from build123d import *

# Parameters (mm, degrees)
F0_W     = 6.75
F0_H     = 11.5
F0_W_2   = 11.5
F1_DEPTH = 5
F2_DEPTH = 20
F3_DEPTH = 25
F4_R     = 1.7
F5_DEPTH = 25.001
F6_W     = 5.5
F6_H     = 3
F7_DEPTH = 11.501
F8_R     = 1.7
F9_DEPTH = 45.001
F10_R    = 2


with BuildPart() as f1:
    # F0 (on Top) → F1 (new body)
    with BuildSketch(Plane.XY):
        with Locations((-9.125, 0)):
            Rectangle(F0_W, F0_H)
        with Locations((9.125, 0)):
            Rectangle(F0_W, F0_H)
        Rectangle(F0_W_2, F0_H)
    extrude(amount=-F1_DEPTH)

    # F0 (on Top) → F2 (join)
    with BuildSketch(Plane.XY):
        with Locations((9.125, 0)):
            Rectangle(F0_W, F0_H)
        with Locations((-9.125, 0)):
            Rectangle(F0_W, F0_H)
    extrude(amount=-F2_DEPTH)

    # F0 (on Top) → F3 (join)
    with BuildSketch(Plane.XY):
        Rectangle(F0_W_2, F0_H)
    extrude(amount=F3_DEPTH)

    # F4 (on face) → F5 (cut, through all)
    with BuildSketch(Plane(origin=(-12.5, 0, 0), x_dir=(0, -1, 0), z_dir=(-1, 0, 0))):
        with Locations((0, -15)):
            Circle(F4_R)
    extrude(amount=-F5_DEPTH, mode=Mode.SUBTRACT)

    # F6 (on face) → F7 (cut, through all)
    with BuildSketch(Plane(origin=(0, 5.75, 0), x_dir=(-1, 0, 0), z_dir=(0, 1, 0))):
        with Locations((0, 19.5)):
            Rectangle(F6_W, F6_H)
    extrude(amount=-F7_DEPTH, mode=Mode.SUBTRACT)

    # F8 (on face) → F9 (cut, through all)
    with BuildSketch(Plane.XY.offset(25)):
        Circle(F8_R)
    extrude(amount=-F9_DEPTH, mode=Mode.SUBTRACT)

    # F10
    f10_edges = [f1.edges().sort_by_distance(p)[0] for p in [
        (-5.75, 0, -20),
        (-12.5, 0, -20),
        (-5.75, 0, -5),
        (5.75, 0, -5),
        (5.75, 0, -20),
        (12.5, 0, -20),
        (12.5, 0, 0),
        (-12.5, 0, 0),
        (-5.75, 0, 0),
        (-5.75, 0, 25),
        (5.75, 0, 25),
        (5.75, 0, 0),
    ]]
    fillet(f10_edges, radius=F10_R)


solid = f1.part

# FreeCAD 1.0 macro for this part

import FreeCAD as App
import Part
import Sketcher

V = App.Vector
Q = App.Units.Quantity


def edges_at(feature, points):
    """Names of the edges that pass closest to the given points."""
    edges = feature.Shape.Edges
    near = lambda p: min(range(len(edges)), key=lambda i: edges[i].distToShape(Part.Vertex(*p))[0])
    return sorted({f"Edge{near(p) + 1}" for p in points})


def add_polygon(sketch, points):
    """Adds a closed chain of lines whose ends are joined by coincident constraints."""
    first, n = sketch.GeometryCount, len(points)
    for a, b in zip(points, points[1:] + points[:1]):
        sketch.addGeometry(Part.LineSegment(App.Vector(*a, 0), App.Vector(*b, 0)), False)
    for i in range(n):
        sketch.addConstraint(Sketcher.Constraint("Coincident", first + i, 2, first + (i + 1) % n, 1))

doc = App.newDocument("Part")
body = doc.addObject("PartDesign::Body", "Body")

# Sketch on XY plane
sketch1 = body.newObject("Sketcher::SketchObject", "Sketch")
sketch1.AttachmentSupport = (doc.getObject("XY_Plane"), [""])
sketch1.MapMode = "FlatFace"
add_polygon(sketch1, [(-12, 6), (-12, -6), (12, -6), (12, 6)])  # lines 0-3
sketch1.addConstraint([
    Sketcher.Constraint("Vertical", 0),
    Sketcher.Constraint("Horizontal", 1),
    Sketcher.Constraint("Vertical", 2),
    Sketcher.Constraint("Horizontal", 3),
    Sketcher.Constraint("Symmetric", 0, 2, 2, 2, -1, 1),
    Sketcher.Constraint("DistanceX", 1, 1, 1, 2, Q("25 mm")),
    Sketcher.Constraint("DistanceY", 0, 2, 0, 1, Q("11.5 mm")),
])
pad1 = body.newObject("PartDesign::Pad", "Pad")
pad1.Profile = sketch1
pad1.Length = 5
pad1.Reversed = True

# Sketch on XY plane
sketch2 = body.newObject("Sketcher::SketchObject", "Sketch001")
sketch2.AttachmentSupport = (doc.getObject("XY_Plane"), [""])
sketch2.MapMode = "FlatFace"
add_polygon(sketch2, [(6, 6), (6, -6), (12, -6), (12, 6)])  # lines 0-3
add_polygon(sketch2, [(-12, 6), (-12, -6), (-6, -6), (-6, 6)])  # lines 4-7
sketch2.addConstraint([
    Sketcher.Constraint("Vertical", 0),
    Sketcher.Constraint("Horizontal", 1),
    Sketcher.Constraint("Vertical", 2),
    Sketcher.Constraint("Horizontal", 3),
    Sketcher.Constraint("Vertical", 4),
    Sketcher.Constraint("Horizontal", 5),
    Sketcher.Constraint("Vertical", 6),
    Sketcher.Constraint("Horizontal", 7),
    Sketcher.Constraint("Symmetric", 2, 2, 4, 2, -1, 1),
    Sketcher.Constraint("Symmetric", 0, 2, 6, 2, -1, 1),
    Sketcher.Constraint("Horizontal", 1, 2, 4, 2),
    Sketcher.Constraint("DistanceY", 0, 2, 0, 1, Q("11.5 mm")),
    Sketcher.Constraint("DistanceX", 4, 2, 1, 2, Q("25 mm")),
    Sketcher.Constraint("DistanceX", 1, 1, 1, 2, Q("6.75 mm")),
])
pad2 = body.newObject("PartDesign::Pad", "Pad001")
pad2.Profile = sketch2
pad2.Length = 20
pad2.Reversed = True

# Sketch on XY plane
sketch3 = body.newObject("Sketcher::SketchObject", "Sketch002")
sketch3.AttachmentSupport = (doc.getObject("XY_Plane"), [""])
sketch3.MapMode = "FlatFace"
add_polygon(sketch3, [(-6, 6), (-6, -6), (6, -6), (6, 6)])  # lines 0-3
sketch3.addConstraint([
    Sketcher.Constraint("Vertical", 0),
    Sketcher.Constraint("Horizontal", 1),
    Sketcher.Constraint("Vertical", 2),
    Sketcher.Constraint("Horizontal", 3),
    Sketcher.Constraint("Symmetric", 0, 2, 2, 2, -1, 1),
    Sketcher.Constraint("Equal", 3, 0),
    Sketcher.Constraint("DistanceX", 1, 1, 1, 2, Q("11.5 mm")),
])
pad3 = body.newObject("PartDesign::Pad", "Pad002")
pad3.Profile = sketch3
pad3.Length = 25

# Sketch on YZ plane
sketch4 = body.newObject("Sketcher::SketchObject", "Sketch003")
sketch4.AttachmentSupport = (doc.getObject("YZ_Plane"), [""])
sketch4.MapMode = "FlatFace"
sketch4.AttachmentOffset = App.Placement(V(0, 0, -12.5), App.Rotation())
sketch4.addGeometry(Part.Circle(V(0, -15, 0), V(0, 0, 1), 1.7), False)
sketch4.addConstraint([
    Sketcher.Constraint("PointOnObject", 0, 3, -2),
    Sketcher.Constraint("Diameter", 0, Q("3.4 mm")),
    Sketcher.Constraint("DistanceY", 0, 3, -1, 1, Q("15 mm")),
])
pocket1 = body.newObject("PartDesign::Pocket", "Pocket")
pocket1.Profile = sketch4
pocket1.Type = "ThroughAll"
pocket1.Reversed = True

# Sketch on XZ plane
sketch5 = body.newObject("Sketcher::SketchObject", "Sketch004")
sketch5.AttachmentSupport = (doc.getObject("XZ_Plane"), [""])
sketch5.MapMode = "FlatFace"
sketch5.AttachmentOffset = App.Placement(V(0, 0, -5.75), App.Rotation())
add_polygon(sketch5, [(2.8, 21), (2.8, 18), (-2.8, 18), (-2.8, 21)])  # lines 0-3
sketch5.addConstraint([
    Sketcher.Constraint("Vertical", 0),
    Sketcher.Constraint("Horizontal", 1),
    Sketcher.Constraint("Vertical", 2),
    Sketcher.Constraint("Horizontal", 3),
    Sketcher.Constraint("DistanceY", 0, 2, 0, 1, Q("3 mm")),
    Sketcher.Constraint("DistanceX", 1, 2, 1, 1, Q("5.5 mm")),
    Sketcher.Constraint("DistanceY", -1, 1, 0, 2, Q("18 mm")),
    Sketcher.Constraint("DistanceX", -1, 1, 0, 2, Q("2.75 mm")),
])
pocket2 = body.newObject("PartDesign::Pocket", "Pocket001")
pocket2.Profile = sketch5
pocket2.Type = "ThroughAll"
pocket2.Reversed = True

# Sketch on XY plane
sketch6 = body.newObject("Sketcher::SketchObject", "Sketch005")
sketch6.AttachmentSupport = (doc.getObject("XY_Plane"), [""])
sketch6.MapMode = "FlatFace"
sketch6.AttachmentOffset = App.Placement(V(0, 0, 25), App.Rotation())
sketch6.addGeometry(Part.Circle(V(0, 0, 0), V(0, 0, 1), 1.7), False)
sketch6.addConstraint([
    Sketcher.Constraint("Coincident", 0, 3, -1, 1),
    Sketcher.Constraint("Diameter", 0, Q("3.4 mm")),
])
pocket3 = body.newObject("PartDesign::Pocket", "Pocket002")
pocket3.Profile = sketch6
pocket3.Type = "ThroughAll"
doc.recompute()

fillet = body.newObject("PartDesign::Fillet", "Fillet")
fillet.Base = (pocket3, edges_at(pocket3, [
    (-5.75, 0, -20),
    (-12.5, 0, -20),
    (-5.75, 0, -5),
    (5.75, 0, -5),
    (5.75, 0, -20),
    (12.5, 0, -20),
    (12.5, 0, 0),
    (-12.5, 0, 0),
    (-5.75, 0, 0),
    (-5.75, 0, 25),
    (5.75, 0, 25),
    (5.75, 0, 0),
]))
fillet.Radius = 2

doc.recompute()
